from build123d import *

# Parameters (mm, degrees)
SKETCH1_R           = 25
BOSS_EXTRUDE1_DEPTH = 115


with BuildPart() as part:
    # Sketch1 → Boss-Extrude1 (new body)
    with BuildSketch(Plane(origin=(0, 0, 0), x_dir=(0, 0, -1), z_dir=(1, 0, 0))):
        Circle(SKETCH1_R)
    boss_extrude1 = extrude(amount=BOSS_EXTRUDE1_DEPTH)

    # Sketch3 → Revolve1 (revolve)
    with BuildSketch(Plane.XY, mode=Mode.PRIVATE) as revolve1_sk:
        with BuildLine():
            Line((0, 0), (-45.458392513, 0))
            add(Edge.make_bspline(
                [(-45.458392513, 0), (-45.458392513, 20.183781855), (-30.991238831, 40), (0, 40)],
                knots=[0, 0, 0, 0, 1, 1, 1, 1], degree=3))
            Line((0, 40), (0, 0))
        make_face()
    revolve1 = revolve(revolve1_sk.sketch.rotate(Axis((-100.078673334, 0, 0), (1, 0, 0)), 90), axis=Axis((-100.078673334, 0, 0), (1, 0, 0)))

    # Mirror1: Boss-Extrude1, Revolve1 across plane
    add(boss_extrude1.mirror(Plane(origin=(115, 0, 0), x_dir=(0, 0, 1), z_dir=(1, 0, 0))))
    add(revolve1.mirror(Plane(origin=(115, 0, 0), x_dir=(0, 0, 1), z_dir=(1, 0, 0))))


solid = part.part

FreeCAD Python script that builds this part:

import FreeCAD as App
import Part
import Sketcher

V = App.Vector

doc = App.newDocument("Part")
body = doc.addObject("PartDesign::Body", "Body")

sketch1 = body.newObject("Sketcher::SketchObject", "Sketch")
sketch1.AttachmentSupport = (doc.getObject("YZ_Plane"), [""])
sketch1.MapMode = "FlatFace"
sketch1.addGeometry(Part.Circle(V(0, 0, 0), V(0, 0, 1), 25), False)
sketch1.addConstraint(Sketcher.Constraint("Coincident", 0, 3, -1, 1))
sketch1.addConstraint(Sketcher.Constraint("Diameter", 0, 50.0))
pad1 = body.newObject("PartDesign::Pad", "Pad")
pad1.Profile = sketch1
pad1.Length = 115

sketch2 = body.newObject("Sketcher::SketchObject", "Sketch001")
sketch2.AttachmentSupport = (doc.getObject("XY_Plane"), [""])
sketch2.MapMode = "FlatFace"
sketch2.addGeometry(Part.LineSegment(V(-45.458393, 0, 0), V(0, 0, 0)), False)
sketch2.addGeometry(Part.LineSegment(V(0, 0, 0), V(0, 40, 0)), False)
sketch2.addGeometry(Part.BSplineCurve([V(-45.458393, 0, 0), V(-45.458393, 20.183782, 0), V(-30.991239, 40, 0), V(0, 40, 0)], [4, 4], [0, 1], False, 3, [1, 1, 1, 1], False), False)
sketch2.addConstraint(Sketcher.Constraint("Block", 2))
sketch2.addConstraint(Sketcher.Constraint("Coincident", 0, 2, 1, 1))
sketch2.addConstraint(Sketcher.Constraint("Coincident", 1, 2, 2, 2))
sketch2.addConstraint(Sketcher.Constraint("Coincident", 2, 1, 0, 1))
sketch2.addConstraint(Sketcher.Constraint("Horizontal", 0))
sketch2.addConstraint(Sketcher.Constraint("Vertical", 1))
revolution = body.newObject("PartDesign::Revolution", "Revolution")
revolution.Profile = sketch2
revolution.ReferenceAxis = (sketch2, ["H_Axis"])
revolution.Angle = 360
doc.recompute()

datumplane = body.newObject("PartDesign::Plane", "DatumPlane")
datumplane.AttachmentSupport = (doc.getObject("YZ_Plane"), [""])
datumplane.MapMode = "FlatFace"
datumplane.AttachmentOffset = App.Placement(V(0, 0, 115), App.Rotation())
mirrored = body.newObject("PartDesign::Mirrored", "Mirrored")
mirrored.Originals = [pad1, revolution]
mirrored.MirrorPlane = (datumplane, [""])
body.Tip = mirrored

doc.recompute()
